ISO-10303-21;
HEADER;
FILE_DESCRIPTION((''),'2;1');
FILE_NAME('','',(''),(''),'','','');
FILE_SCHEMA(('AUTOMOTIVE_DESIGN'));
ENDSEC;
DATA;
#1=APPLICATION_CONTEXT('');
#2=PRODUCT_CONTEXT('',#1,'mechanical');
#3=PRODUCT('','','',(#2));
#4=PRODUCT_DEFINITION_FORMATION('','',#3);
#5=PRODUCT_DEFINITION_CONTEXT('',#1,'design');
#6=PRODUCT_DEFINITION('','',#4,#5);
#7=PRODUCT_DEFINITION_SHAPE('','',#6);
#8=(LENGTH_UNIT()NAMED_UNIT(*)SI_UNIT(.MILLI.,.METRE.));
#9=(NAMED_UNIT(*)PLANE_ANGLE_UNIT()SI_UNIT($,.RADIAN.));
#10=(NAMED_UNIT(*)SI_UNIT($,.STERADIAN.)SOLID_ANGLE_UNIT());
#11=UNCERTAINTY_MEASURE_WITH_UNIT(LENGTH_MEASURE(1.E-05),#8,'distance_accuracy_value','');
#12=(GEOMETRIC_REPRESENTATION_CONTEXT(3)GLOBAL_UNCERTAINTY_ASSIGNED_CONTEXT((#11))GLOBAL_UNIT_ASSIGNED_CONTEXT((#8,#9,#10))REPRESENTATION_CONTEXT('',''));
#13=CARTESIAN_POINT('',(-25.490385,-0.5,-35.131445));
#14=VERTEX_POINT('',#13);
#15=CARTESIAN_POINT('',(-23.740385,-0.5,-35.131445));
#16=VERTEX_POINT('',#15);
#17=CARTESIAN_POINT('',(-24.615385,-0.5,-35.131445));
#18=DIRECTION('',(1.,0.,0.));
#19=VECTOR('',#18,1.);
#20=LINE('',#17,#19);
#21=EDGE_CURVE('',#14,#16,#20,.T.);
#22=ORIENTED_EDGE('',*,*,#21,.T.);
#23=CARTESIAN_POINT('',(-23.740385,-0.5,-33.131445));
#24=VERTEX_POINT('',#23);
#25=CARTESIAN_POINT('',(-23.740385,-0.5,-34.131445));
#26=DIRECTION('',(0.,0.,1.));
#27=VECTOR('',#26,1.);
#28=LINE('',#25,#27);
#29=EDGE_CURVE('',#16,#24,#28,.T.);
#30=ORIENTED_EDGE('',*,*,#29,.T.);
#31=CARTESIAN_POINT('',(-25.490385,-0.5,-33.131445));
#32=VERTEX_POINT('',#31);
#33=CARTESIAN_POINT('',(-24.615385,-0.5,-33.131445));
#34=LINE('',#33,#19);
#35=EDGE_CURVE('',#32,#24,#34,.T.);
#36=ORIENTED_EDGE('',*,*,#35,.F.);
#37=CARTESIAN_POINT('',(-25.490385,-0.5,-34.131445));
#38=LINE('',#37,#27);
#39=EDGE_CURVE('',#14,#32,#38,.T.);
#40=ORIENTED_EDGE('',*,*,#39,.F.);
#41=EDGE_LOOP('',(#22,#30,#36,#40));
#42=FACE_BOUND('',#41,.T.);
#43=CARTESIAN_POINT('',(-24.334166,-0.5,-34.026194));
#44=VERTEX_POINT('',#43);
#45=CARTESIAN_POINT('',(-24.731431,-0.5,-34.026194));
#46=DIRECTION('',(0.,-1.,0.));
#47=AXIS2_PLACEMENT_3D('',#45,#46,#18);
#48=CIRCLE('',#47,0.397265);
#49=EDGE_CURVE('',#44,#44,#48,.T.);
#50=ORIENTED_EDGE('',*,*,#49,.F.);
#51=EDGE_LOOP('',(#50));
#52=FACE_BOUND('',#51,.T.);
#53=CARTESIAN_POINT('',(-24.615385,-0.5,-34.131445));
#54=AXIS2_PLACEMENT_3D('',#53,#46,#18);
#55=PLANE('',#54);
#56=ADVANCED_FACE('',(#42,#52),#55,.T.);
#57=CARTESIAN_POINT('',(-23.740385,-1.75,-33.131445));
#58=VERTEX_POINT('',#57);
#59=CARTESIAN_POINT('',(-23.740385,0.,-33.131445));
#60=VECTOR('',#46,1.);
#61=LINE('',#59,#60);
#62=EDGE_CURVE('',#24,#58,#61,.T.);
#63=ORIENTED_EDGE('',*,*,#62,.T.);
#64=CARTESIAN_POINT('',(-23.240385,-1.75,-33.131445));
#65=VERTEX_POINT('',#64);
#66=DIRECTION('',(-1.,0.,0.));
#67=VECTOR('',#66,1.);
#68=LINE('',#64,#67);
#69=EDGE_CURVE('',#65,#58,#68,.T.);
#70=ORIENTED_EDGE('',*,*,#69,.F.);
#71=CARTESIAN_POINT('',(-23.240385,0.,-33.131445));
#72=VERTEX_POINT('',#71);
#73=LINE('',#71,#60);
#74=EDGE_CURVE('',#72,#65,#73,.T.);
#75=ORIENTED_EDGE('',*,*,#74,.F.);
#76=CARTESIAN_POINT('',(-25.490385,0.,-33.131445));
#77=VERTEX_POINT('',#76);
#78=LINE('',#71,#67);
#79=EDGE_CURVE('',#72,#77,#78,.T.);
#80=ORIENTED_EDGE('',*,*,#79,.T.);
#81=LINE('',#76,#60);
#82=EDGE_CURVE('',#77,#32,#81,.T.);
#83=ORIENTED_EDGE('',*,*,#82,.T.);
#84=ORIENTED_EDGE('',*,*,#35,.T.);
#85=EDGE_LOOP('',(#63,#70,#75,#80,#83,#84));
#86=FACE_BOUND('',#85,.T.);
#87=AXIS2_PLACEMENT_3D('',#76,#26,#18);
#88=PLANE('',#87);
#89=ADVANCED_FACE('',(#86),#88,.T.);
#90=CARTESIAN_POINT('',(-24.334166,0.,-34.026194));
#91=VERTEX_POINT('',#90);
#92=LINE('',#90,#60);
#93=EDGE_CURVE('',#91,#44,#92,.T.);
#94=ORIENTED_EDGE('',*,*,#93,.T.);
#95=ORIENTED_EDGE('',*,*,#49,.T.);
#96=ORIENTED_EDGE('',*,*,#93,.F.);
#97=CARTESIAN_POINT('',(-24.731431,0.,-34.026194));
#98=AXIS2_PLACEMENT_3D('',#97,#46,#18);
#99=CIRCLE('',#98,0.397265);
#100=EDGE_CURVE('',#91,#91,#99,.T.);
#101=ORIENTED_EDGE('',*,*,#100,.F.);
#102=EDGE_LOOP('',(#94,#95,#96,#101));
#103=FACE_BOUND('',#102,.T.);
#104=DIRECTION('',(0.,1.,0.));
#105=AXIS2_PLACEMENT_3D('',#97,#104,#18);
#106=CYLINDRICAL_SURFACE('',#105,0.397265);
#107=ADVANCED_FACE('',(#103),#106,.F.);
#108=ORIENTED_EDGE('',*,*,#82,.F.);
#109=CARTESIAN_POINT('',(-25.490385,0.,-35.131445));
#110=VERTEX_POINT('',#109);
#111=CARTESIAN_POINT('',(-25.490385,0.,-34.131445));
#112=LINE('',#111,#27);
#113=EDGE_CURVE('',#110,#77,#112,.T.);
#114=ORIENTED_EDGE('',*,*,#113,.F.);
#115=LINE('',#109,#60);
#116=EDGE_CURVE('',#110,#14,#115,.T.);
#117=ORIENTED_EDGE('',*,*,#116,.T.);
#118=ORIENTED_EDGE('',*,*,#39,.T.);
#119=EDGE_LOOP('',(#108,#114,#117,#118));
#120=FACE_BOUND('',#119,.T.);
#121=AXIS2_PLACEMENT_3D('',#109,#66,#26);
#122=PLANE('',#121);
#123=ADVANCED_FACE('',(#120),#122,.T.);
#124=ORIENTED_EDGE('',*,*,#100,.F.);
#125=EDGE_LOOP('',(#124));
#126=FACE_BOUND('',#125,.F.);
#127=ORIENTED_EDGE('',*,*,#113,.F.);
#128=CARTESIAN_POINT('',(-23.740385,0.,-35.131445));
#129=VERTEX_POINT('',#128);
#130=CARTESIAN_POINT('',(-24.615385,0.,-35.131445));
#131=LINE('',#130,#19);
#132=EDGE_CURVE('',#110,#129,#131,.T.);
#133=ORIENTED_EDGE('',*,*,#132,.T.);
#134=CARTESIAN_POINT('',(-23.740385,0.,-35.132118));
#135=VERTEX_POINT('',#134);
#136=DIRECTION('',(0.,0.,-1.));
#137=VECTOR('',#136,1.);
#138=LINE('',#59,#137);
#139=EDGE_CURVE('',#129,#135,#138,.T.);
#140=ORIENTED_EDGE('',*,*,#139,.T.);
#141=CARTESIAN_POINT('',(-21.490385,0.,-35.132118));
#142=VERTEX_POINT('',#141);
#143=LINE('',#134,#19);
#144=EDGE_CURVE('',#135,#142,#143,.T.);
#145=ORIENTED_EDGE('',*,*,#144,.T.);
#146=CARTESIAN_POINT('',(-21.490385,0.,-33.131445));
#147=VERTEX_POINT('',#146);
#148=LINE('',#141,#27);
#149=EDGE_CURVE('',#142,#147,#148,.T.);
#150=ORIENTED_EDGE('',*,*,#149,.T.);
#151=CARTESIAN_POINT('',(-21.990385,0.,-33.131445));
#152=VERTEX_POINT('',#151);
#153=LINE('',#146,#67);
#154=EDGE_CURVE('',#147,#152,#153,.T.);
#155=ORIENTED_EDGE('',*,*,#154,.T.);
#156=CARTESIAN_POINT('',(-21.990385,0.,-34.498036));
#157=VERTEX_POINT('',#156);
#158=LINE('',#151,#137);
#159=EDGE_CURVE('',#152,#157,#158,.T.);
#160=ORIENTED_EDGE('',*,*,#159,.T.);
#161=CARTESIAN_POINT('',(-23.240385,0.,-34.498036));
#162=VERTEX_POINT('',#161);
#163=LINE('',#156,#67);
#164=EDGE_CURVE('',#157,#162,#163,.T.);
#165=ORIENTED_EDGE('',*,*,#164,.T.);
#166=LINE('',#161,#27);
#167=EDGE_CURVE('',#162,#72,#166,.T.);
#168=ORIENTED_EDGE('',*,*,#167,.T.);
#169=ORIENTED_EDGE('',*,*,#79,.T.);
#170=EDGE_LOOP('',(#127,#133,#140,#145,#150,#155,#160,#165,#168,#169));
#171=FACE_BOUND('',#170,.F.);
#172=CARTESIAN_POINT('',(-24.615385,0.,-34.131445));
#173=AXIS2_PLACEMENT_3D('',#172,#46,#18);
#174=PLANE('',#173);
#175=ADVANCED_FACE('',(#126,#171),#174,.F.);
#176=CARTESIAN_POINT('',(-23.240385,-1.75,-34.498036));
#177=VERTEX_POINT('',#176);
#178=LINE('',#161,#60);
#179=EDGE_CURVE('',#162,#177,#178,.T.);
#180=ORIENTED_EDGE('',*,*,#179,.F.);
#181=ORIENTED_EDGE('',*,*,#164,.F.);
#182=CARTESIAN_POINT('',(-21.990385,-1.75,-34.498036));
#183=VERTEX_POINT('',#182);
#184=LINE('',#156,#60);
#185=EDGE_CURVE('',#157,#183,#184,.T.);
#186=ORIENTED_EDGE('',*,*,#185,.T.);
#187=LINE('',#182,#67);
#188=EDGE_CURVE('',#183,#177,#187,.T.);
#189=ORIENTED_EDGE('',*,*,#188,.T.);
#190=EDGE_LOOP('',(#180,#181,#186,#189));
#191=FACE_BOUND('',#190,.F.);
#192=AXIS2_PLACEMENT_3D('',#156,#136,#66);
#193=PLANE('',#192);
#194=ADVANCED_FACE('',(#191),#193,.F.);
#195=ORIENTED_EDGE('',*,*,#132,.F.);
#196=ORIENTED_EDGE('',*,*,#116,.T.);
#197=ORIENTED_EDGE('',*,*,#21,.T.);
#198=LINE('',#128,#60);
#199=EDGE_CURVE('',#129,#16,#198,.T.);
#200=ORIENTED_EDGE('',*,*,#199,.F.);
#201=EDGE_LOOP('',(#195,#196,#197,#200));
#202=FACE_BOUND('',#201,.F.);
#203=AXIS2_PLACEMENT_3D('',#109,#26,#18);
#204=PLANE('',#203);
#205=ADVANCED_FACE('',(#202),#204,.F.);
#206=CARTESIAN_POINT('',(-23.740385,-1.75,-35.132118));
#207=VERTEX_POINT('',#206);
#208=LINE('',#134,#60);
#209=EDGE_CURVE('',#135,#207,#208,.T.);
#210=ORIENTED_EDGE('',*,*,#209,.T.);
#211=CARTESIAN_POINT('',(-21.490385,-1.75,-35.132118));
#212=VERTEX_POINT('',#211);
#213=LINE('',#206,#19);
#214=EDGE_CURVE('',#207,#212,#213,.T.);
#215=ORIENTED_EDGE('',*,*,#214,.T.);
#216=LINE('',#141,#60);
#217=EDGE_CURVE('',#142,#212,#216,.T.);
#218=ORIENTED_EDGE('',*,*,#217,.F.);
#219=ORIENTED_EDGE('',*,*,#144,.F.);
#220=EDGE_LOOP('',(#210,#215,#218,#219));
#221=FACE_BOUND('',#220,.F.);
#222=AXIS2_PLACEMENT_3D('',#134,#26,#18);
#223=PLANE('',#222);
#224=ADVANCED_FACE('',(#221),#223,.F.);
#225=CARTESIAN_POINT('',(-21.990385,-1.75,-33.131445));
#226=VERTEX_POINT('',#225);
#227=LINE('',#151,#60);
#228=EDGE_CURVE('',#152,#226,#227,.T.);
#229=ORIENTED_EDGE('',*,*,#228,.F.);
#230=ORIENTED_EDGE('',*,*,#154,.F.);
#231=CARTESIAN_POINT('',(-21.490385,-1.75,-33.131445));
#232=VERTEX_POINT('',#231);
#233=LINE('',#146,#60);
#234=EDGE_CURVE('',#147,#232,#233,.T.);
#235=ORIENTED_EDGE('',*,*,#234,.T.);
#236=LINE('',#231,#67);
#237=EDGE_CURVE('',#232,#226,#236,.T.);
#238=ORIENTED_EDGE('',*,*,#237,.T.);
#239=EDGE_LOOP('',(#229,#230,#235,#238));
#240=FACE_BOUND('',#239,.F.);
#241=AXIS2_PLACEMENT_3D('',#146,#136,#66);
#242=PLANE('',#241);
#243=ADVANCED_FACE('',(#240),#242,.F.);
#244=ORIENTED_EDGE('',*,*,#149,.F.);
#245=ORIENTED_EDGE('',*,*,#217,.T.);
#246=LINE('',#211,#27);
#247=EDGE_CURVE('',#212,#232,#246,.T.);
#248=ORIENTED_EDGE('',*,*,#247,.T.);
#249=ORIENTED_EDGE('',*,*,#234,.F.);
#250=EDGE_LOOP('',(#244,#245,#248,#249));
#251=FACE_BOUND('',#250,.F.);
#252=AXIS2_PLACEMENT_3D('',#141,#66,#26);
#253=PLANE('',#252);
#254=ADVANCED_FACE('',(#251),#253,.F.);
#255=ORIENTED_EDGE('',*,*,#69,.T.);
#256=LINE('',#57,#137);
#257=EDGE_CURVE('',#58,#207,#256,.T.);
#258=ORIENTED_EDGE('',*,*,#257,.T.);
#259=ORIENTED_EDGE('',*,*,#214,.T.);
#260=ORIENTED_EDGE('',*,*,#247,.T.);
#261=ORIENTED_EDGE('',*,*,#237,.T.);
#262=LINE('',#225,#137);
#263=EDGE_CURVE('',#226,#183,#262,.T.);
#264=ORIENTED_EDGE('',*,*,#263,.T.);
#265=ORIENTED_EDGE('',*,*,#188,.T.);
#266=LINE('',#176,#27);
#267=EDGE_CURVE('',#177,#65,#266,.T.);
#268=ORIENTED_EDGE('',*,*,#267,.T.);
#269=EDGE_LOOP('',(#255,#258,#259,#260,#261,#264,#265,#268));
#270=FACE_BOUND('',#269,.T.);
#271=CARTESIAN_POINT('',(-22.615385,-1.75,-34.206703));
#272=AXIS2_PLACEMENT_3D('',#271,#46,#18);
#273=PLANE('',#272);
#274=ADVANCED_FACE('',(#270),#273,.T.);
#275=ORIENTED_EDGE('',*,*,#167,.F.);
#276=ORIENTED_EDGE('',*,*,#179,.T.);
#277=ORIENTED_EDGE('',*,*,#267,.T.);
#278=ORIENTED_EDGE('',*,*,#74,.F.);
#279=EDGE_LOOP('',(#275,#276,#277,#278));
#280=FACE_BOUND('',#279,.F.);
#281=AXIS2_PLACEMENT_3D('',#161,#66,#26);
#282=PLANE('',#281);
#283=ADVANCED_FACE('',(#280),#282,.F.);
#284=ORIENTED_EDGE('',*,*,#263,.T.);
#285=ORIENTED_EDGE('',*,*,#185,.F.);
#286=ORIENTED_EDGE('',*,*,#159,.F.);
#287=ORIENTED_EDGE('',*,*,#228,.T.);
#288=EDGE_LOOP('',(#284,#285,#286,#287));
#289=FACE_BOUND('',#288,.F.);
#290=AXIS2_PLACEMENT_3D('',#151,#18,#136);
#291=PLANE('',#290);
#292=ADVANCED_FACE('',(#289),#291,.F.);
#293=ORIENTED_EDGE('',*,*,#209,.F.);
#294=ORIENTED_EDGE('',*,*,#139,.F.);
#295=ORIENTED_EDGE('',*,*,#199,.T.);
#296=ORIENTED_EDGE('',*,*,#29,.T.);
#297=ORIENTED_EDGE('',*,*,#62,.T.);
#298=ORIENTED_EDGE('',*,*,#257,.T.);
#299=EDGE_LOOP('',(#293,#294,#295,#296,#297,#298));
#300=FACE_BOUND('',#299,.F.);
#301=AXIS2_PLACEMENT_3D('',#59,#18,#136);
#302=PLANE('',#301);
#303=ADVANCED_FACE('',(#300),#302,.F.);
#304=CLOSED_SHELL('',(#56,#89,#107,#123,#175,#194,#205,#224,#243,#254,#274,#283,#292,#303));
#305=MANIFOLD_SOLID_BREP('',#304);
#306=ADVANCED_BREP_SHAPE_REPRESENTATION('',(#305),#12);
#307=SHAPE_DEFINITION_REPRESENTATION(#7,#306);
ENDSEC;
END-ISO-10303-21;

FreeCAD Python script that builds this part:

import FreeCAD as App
import Part
import Sketcher


def add_polygon(sketch, points):
    """Adds a closed chain of lines whose ends are joined by coincident constraints."""
    first, n = sketch.GeometryCount, len(points)
    for a, b in zip(points, points[1:] + points[:1]):
        sketch.addGeometry(Part.LineSegment(App.Vector(*a, 0), App.Vector(*b, 0)), False)
    for i in range(n):
        sketch.addConstraint(Sketcher.Constraint("Coincident", first + i, 2, first + (i + 1) % n, 1))

doc = App.newDocument("Part")
params = doc.addObject("Spreadsheet::Sheet", "Params")
for row, (alias, value) in enumerate([
    ("sketch1_width", "0.5 mm"),
    ("sketch1_width2", "2.25 mm"),
    ("pad1_length", "1.75 mm"),
    ("sketch2_height", "2 mm"),
    ("sketch2_width", "1.75 mm"),
    ("pad2_length", "0.5 mm"),
], start=1):
    params.set(f"A{row}", alias)
    params.set(f"B{row}", "=" + value)
    params.setAlias(f"B{row}", alias)

body = doc.addObject("PartDesign::Body", "Body")

# Sketch on XZ plane
sketch1 = body.newObject("Sketcher::SketchObject", "Sketch")
sketch1.AttachmentSupport = (doc.getObject("XZ_Plane"), [""])
sketch1.MapMode = "FlatFace"
add_polygon(sketch1, [(-23.2, -33.1), (-23.7, -33.1), (-23.7, -35.1), (-21.5, -35.1), (-21.5, -33.1), (-22, -33.1), (-22, -34.5), (-23.2, -34.5)])  # lines 0-7
sketch1.addConstraint(Sketcher.Constraint("Horizontal", 0))
sketch1.addConstraint(Sketcher.Constraint("Vertical", 1))
sketch1.addConstraint(Sketcher.Constraint("Horizontal", 2))
sketch1.addConstraint(Sketcher.Constraint("Vertical", 3))
sketch1.addConstraint(Sketcher.Constraint("Horizontal", 4))
sketch1.addConstraint(Sketcher.Constraint("Vertical", 5))
sketch1.addConstraint(Sketcher.Constraint("Horizontal", 6))
sketch1.addConstraint(Sketcher.Constraint("Vertical", 7))
sketch1.addConstraint(Sketcher.Constraint("Horizontal", 0, 2, 3, 2))
sketch1.addConstraint(Sketcher.Constraint("Equal", 0, 4))
sketch1.addConstraint(Sketcher.Constraint("DistanceX", 0, 2, 0, 1, 0.5))
sketch1.addConstraint(Sketcher.Constraint("DistanceX", 2, 1, 2, 2, 2.25))
sketch1.addConstraint(Sketcher.Constraint("DistanceY", 5, 2, 5, 1, 1.366591))
sketch1.addConstraint(Sketcher.Constraint("DistanceY", 1, 2, 1, 1, 2.000673))
sketch1.addConstraint(Sketcher.Constraint("DistanceX", 0, 2, -1, 1, 23.740385))
sketch1.addConstraint(Sketcher.Constraint("DistanceY", 0, 2, -1, 1, 33.131445))
sketch1.setExpression("Constraints[18]", "Params.sketch1_width")
sketch1.setExpression("Constraints[19]", "Params.sketch1_width2")
pad1 = body.newObject("PartDesign::Pad", "Pad")
pad1.Profile = sketch1
pad1.setExpression("Length", "Params.pad1_length")

# Sketch on XZ plane
sketch2 = body.newObject("Sketcher::SketchObject", "Sketch001")
sketch2.AttachmentSupport = (doc.getObject("XZ_Plane"), [""])
sketch2.MapMode = "FlatFace"
add_polygon(sketch2, [(-25.49, -33.13), (-25.49, -35.13), (-23.74, -35.13), (-23.74, -33.13)])  # lines 0-3
sketch2.addGeometry(Part.Circle(App.Vector(-24.73, -34.03, 0), App.Vector(0, 0, 1), 0.4), False)  # 4
sketch2.addConstraint(Sketcher.Constraint("Vertical", 0))
sketch2.addConstraint(Sketcher.Constraint("Horizontal", 1))
sketch2.addConstraint(Sketcher.Constraint("Vertical", 2))
sketch2.addConstraint(Sketcher.Constraint("Horizontal", 3))
sketch2.addConstraint(Sketcher.Constraint("DistanceY", 0, 2, 0, 1, 2.0))
sketch2.addConstraint(Sketcher.Constraint("DistanceX", 1, 1, 1, 2, 1.75))
sketch2.addConstraint(Sketcher.Constraint("Diameter", 4, 0.79453))
sketch2.addConstraint(Sketcher.Constraint("DistanceX", 4, 3, -1, 1, 24.731431))
sketch2.addConstraint(Sketcher.Constraint("DistanceY", 0, 2, 4, 3, 1.105251))
sketch2.addConstraint(Sketcher.Constraint("DistanceY", 4, 3, -1, 1, 34.026194))
sketch2.addConstraint(Sketcher.Constraint("DistanceX", 0, 2, -1, 1, 25.490385))
sketch2.setExpression("Constraints[8]", "Params.sketch2_height")
sketch2.setExpression("Constraints[9]", "Params.sketch2_width")
pad2 = body.newObject("PartDesign::Pad", "Pad001")
pad2.Profile = sketch2
pad2.setExpression("Length", "Params.pad2_length")

doc.recompute()
